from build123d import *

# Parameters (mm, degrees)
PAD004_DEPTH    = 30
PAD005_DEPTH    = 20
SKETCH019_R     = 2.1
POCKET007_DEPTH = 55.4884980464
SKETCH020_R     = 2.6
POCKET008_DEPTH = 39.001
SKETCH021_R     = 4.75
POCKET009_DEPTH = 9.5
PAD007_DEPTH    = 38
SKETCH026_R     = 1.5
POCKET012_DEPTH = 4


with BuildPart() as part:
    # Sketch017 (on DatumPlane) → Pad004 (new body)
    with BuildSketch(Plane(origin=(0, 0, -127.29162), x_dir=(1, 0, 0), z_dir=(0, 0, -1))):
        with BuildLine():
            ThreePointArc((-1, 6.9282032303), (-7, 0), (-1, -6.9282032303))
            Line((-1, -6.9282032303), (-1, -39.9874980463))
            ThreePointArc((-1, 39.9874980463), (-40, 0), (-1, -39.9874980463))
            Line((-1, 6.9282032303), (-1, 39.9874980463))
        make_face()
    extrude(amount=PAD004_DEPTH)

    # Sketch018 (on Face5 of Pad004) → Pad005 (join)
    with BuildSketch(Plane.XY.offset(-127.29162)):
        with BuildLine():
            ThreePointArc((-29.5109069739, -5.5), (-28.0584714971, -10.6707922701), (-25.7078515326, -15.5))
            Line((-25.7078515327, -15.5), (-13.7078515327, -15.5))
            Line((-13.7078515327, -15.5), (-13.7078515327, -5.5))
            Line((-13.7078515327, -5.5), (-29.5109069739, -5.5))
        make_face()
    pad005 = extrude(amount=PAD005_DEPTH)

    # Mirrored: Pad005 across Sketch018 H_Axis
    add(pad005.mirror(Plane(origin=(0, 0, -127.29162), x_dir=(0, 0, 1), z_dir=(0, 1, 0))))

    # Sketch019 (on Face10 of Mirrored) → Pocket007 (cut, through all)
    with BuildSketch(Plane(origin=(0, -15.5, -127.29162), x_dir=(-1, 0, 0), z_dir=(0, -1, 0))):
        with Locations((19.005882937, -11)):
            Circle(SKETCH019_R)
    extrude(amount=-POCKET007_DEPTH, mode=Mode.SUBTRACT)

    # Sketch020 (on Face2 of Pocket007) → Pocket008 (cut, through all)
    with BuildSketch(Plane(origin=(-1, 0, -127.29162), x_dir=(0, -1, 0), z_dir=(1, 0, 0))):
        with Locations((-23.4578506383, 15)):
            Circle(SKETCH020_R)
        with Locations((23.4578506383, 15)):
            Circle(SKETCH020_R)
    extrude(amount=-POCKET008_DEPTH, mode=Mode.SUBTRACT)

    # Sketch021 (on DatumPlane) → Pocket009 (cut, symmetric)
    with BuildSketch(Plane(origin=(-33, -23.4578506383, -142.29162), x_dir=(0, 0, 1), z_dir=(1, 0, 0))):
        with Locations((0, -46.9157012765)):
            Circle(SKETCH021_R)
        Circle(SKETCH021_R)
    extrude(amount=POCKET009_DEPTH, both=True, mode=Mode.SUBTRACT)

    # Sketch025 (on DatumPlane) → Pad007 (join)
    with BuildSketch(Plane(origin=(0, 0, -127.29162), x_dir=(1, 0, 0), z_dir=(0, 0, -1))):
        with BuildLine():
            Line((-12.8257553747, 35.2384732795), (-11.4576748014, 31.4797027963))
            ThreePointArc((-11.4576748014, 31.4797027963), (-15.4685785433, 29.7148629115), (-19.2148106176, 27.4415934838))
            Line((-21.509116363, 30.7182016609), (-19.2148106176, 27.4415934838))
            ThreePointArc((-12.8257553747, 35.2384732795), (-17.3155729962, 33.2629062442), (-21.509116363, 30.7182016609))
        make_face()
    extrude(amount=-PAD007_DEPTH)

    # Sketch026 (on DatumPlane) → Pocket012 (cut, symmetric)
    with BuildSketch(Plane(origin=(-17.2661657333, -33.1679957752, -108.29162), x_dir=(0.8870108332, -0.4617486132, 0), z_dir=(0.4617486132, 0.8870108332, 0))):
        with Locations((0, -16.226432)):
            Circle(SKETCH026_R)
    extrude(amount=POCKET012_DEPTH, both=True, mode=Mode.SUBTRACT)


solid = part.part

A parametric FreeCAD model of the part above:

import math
import FreeCAD as App
import Part
import Sketcher
from FreeCAD import Vector
Q = App.Units.Quantity

doc = App.newDocument("Part")
params = doc.addObject("Spreadsheet::Sheet", "Params")
for row, (alias, value) in enumerate([
    ("sketch1_radius", "7 mm"),
    ("sketch1_radius2", "40 mm"),
    ("pad1_length", "30 mm"),
    ("sketch2_width", "12 mm"),
    ("sketch2_height", "10 mm"),
    ("pad2_length", "20 mm"),
    ("sketch3_diameter", "4.2 mm"),
    ("sketch4_diameter", "5.2 mm"),
    ("sketch5_diameter", "9.5 mm"),
    ("pocket3_length", "19 mm"),
    ("sketch6_radius", "37.5 mm"),
    ("sketch6_radius2", "33.5 mm"),
    ("pad3_length", "38 mm"),
    ("sketch7_diameter", "3 mm"),
    ("pocket4_length", "8 mm"),
], start=1):
    params.set(f"A{row}", alias)
    params.set(f"B{row}", "=" + value)
    params.setAlias(f"B{row}", alias)

body = doc.addObject("PartDesign::Body", "Body")

# Sketch on XY plane
sketch1 = body.newObject("Sketcher::SketchObject", "Sketch")
sketch1.AttachmentSupport = (doc.getObject("XY_Plane"), [""])
sketch1.MapMode = "FlatFace"
sketch1.AttachmentOffset = App.Placement(Vector(0, 0, -127.29162), App.Rotation())
sketch1.addGeometry(Part.ArcOfCircle(Part.Circle(Vector(0, 0, 0), Vector(0, 0, 1), 7), math.radians(98.213211), math.radians(261.786789)), False)
sketch1.addGeometry(Part.LineSegment(Vector(-1, -6.928203, 0), Vector(-1, -39.987498, 0)), False)
sketch1.addGeometry(Part.ArcOfCircle(Part.Circle(Vector(0, 0, 0), Vector(0, 0, 1), 40), math.radians(91.432544), math.radians(268.567456)), False)
sketch1.addGeometry(Part.LineSegment(Vector(-1, 39.987498, 0), Vector(-1, 6.928203, 0)), False)
sketch1.addConstraint(Sketcher.Constraint("Coincident", 0, 2, 1, 1))
sketch1.addConstraint(Sketcher.Constraint("Coincident", 1, 2, 2, 2))
sketch1.addConstraint(Sketcher.Constraint("Coincident", 2, 1, 3, 1))
sketch1.addConstraint(Sketcher.Constraint("Coincident", 3, 2, 0, 1))
sketch1.addConstraint(Sketcher.Constraint("Vertical", 1))
sketch1.addConstraint(Sketcher.Constraint("Vertical", 3))
sketch1.addConstraint(Sketcher.Constraint("Coincident", 0, 3, -1, 1))
sketch1.addConstraint(Sketcher.Constraint("Coincident", 2, 3, -1, 1))
sketch1.addConstraint(Sketcher.Constraint("Vertical", 1, 2, 2, 1))
sketch1.addConstraint(Sketcher.Constraint("Radius", 0, Q("7 mm")))
sketch1.addConstraint(Sketcher.Constraint("Radius", 2, Q("40 mm")))
sketch1.addConstraint(Sketcher.Constraint("DistanceX", 0, 2, -1, 1, Q("1 mm")))
sketch1.setExpression("Constraints[9]", "Params.sketch1_radius")
sketch1.setExpression("Constraints[10]", "Params.sketch1_radius2")
pad1 = body.newObject("PartDesign::Pad", "Pad")
pad1.Profile = sketch1
pad1.setExpression("Length", "Params.pad1_length")
pad1.Reversed = True

# Sketch on XY plane
sketch2 = body.newObject("Sketcher::SketchObject", "Sketch001")
sketch2.AttachmentSupport = (doc.getObject("XY_Plane"), [""])
sketch2.MapMode = "FlatFace"
sketch2.AttachmentOffset = App.Placement(Vector(0, 0, -127.29162), App.Rotation())
sketch2.addGeometry(Part.ArcOfCircle(Part.Circle(Vector(0, 0, 0), Vector(0, 0, 1), 30.019054), math.radians(-169.442805), math.radians(-148.913021)), False)
sketch2.addGeometry(Part.LineSegment(Vector(-25.707852, -15.5, 0), Vector(-13.707852, -15.5, 0)), False)
sketch2.addGeometry(Part.LineSegment(Vector(-13.707852, -15.5, 0), Vector(-13.707852, -5.5, 0)), False)
sketch2.addGeometry(Part.LineSegment(Vector(-13.707852, -5.5, 0), Vector(-29.510907, -5.5, 0)), False)
sketch2.addConstraint(Sketcher.Constraint("Coincident", 0, 2, 1, 1))
sketch2.addConstraint(Sketcher.Constraint("Coincident", 1, 2, 2, 1))
sketch2.addConstraint(Sketcher.Constraint("Coincident", 2, 2, 3, 1))
sketch2.addConstraint(Sketcher.Constraint("Coincident", 3, 2, 0, 1))
sketch2.addConstraint(Sketcher.Constraint("Horizontal", 1))
sketch2.addConstraint(Sketcher.Constraint("Vertical", 2))
sketch2.addConstraint(Sketcher.Constraint("Horizontal", 3))
sketch2.addConstraint(Sketcher.Constraint("Coincident", 0, 3, -1, 1))
sketch2.addConstraint(Sketcher.Constraint("DistanceX", 1, 1, 1, 2, Q("12 mm")))
sketch2.addConstraint(Sketcher.Constraint("DistanceY", 2, 1, 2, 2, Q("10 mm")))
sketch2.addConstraint(Sketcher.Constraint("DistanceY", 0, 2, -1, 1, Q("15.5 mm")))
sketch2.addConstraint(Sketcher.Constraint("Radius", 0, Q("30.019054 mm")))
sketch2.setExpression("Constraints[8]", "Params.sketch2_width")
sketch2.setExpression("Constraints[9]", "Params.sketch2_height")
pad2 = body.newObject("PartDesign::Pad", "Pad001")
pad2.Profile = sketch2
pad2.setExpression("Length", "Params.pad2_length")
doc.recompute()

mirrored = body.newObject("PartDesign::Mirrored", "Mirrored")
mirrored.Originals = [pad2]
mirrored.MirrorPlane = (doc.getObject("XZ_Plane"), [""])
body.Tip = mirrored

# Sketch on XZ plane
sketch3 = body.newObject("Sketcher::SketchObject", "Sketch002")
sketch3.AttachmentSupport = (doc.getObject("XZ_Plane"), [""])
sketch3.MapMode = "FlatFace"
sketch3.AttachmentOffset = App.Placement(Vector(0, 0, 15.5), App.Rotation())
sketch3.addGeometry(Part.Circle(Vector(-19.005883, -116.29162, 0), Vector(0, 0, 1), 2.1), False)
sketch3.addConstraint(Sketcher.Constraint("Diameter", 0, Q("4.2 mm")))
sketch3.addConstraint(Sketcher.Constraint("DistanceY", 0, 3, -1, 1, Q("116.29162 mm")))
sketch3.addConstraint(Sketcher.Constraint("DistanceX", 0, 3, -1, 1, Q("19.005883 mm")))
sketch3.setExpression("Constraints[0]", "Params.sketch3_diameter")
pocket1 = body.newObject("PartDesign::Pocket", "Pocket")
pocket1.Profile = sketch3
pocket1.Type = "ThroughAll"

# Sketch on YZ plane
sketch4 = body.newObject("Sketcher::SketchObject", "Sketch003")
sketch4.AttachmentSupport = (doc.getObject("YZ_Plane"), [""])
sketch4.MapMode = "FlatFace"
sketch4.AttachmentOffset = App.Placement(Vector(0, 0, -1), App.Rotation())
sketch4.addGeometry(Part.Circle(Vector(23.457851, -142.29162, 0), Vector(0, 0, 1), 2.6), False)
sketch4.addGeometry(Part.Circle(Vector(-23.457851, -142.29162, 0), Vector(0, 0, 1), 2.6), False)
sketch4.addConstraint(Sketcher.Constraint("Equal", 0, 1))
sketch4.addConstraint(Sketcher.Constraint("Symmetric", 0, 3, 1, 3, -2))
sketch4.addConstraint(Sketcher.Constraint("Diameter", 0, Q("5.2 mm")))
sketch4.addConstraint(Sketcher.Constraint("DistanceX", 1, 3, 0, 3, Q("46.915701 mm")))
sketch4.addConstraint(Sketcher.Constraint("DistanceY", 0, 3, -1, 1, Q("142.29162 mm")))
sketch4.setExpression("Constraints[2]", "Params.sketch4_diameter")
pocket2 = body.newObject("PartDesign::Pocket", "Pocket001")
pocket2.Profile = sketch4
pocket2.Type = "ThroughAll"

# Sketch on YZ plane
sketch5 = body.newObject("Sketcher::SketchObject", "Sketch004")
sketch5.AttachmentSupport = (doc.getObject("YZ_Plane"), [""])
sketch5.MapMode = "FlatFace"
sketch5.AttachmentOffset = App.Placement(Vector(0, 0, -33), App.Rotation())
sketch5.addGeometry(Part.Circle(Vector(23.457851, -142.29162, 0), Vector(0, 0, 1), 4.75), False)
sketch5.addGeometry(Part.Circle(Vector(-23.457851, -142.29162, 0), Vector(0, 0, 1), 4.75), False)
sketch5.addConstraint(Sketcher.Constraint("Equal", 0, 1))
sketch5.addConstraint(Sketcher.Constraint("Symmetric", 0, 3, 1, 3, -2))
sketch5.addConstraint(Sketcher.Constraint("Diameter", 0, Q("9.5 mm")))
sketch5.addConstraint(Sketcher.Constraint("DistanceX", 1, 3, 0, 3, Q("46.915701 mm")))
sketch5.addConstraint(Sketcher.Constraint("DistanceY", 0, 3, -1, 1, Q("142.29162 mm")))
sketch5.setExpression("Constraints[2]", "Params.sketch5_diameter")
pocket3 = body.newObject("PartDesign::Pocket", "Pocket002")
pocket3.Profile = sketch5
pocket3.setExpression("Length", "Params.pocket3_length")
pocket3.Midplane = True

# Sketch on XY plane
sketch6 = body.newObject("Sketcher::SketchObject", "Sketch005")
sketch6.AttachmentSupport = (doc.getObject("XY_Plane"), [""])
sketch6.MapMode = "FlatFace"
sketch6.AttachmentOffset = App.Placement(Vector(0, 0, -127.29162), App.Rotation())
sketch6.addGeometry(Part.LineSegment(Vector(-11.457675, -31.479703, 0), Vector(-12.825755, -35.238473, 0)), False)
sketch6.addGeometry(Part.ArcOfCircle(Part.Circle(Vector(0, 0, 0), Vector(0, 0, 1), 37.5), math.radians(-125), math.radians(-110)), False)
sketch6.addGeometry(Part.LineSegment(Vector(-21.509116, -30.718202, 0), Vector(-19.214811, -27.441593, 0)), False)
sketch6.addGeometry(Part.ArcOfCircle(Part.Circle(Vector(0, 0, 0), Vector(0, 0, 1), 33.5), math.radians(-125), math.radians(-110)), False)
sketch6.addConstraint(Sketcher.Constraint("Coincident", 0, 2, 1, 2))
sketch6.addConstraint(Sketcher.Constraint("Coincident", 1, 1, 2, 1))
sketch6.addConstraint(Sketcher.Constraint("Coincident", 2, 2, 3, 1))
sketch6.addConstraint(Sketcher.Constraint("Coincident", 3, 2, 0, 1))
sketch6.addConstraint(Sketcher.Constraint("Coincident", 1, 3, -1, 1))
sketch6.addConstraint(Sketcher.Constraint("Coincident", 3, 3, -1, 1))
sketch6.addConstraint(Sketcher.Constraint("Radius", 1, Q("37.5 mm")))
sketch6.addConstraint(Sketcher.Constraint("Radius", 3, Q("33.5 mm")))
sketch6.addConstraint(Sketcher.Constraint("Angle", 0, Q("-110 deg")))
sketch6.addConstraint(Sketcher.Constraint("Angle", 2, Q("55 deg")))
sketch6.addConstraint(Sketcher.Constraint("DistanceY", 1, 1, -1, 1, Q("30.718202 mm")))
sketch6.addConstraint(Sketcher.Constraint("DistanceY", 3, 2, 1, 1, Q("0.761501 mm")))
sketch6.setExpression("Constraints[6]", "Params.sketch6_radius")
sketch6.setExpression("Constraints[7]", "Params.sketch6_radius2")
pad3 = body.newObject("PartDesign::Pad", "Pad002")
pad3.Profile = sketch6
pad3.setExpression("Length", "Params.pad3_length")

# Sketch on an angled plane
sketch7 = body.newObject("Sketcher::SketchObject", "Sketch006")
sketch7.Placement = App.Placement(Vector(-17.266166, -33.167996, -108.29162), App.Rotation(Vector(0.887010833, -0.461748613, 0), Vector(0, 0, -0.999999999), Vector(0.461748613, 0.887010833, 0), "ZXY"))
sketch7.addGeometry(Part.Circle(Vector(0, -16.226432, 0), Vector(0, 0, 1), 1.5), False)
sketch7.addConstraint(Sketcher.Constraint("PointOnObject", 0, 3, -2))
sketch7.addConstraint(Sketcher.Constraint("Diameter", 0, Q("3 mm")))
sketch7.addConstraint(Sketcher.Constraint("DistanceY", 0, 3, -1, 1, Q("16.226432 mm")))
sketch7.setExpression("Constraints[1]", "Params.sketch7_diameter")
pocket4 = body.newObject("PartDesign::Pocket", "Pocket003")
pocket4.Profile = sketch7
pocket4.setExpression("Length", "Params.pocket4_length")
pocket4.Midplane = True

doc.recompute()
